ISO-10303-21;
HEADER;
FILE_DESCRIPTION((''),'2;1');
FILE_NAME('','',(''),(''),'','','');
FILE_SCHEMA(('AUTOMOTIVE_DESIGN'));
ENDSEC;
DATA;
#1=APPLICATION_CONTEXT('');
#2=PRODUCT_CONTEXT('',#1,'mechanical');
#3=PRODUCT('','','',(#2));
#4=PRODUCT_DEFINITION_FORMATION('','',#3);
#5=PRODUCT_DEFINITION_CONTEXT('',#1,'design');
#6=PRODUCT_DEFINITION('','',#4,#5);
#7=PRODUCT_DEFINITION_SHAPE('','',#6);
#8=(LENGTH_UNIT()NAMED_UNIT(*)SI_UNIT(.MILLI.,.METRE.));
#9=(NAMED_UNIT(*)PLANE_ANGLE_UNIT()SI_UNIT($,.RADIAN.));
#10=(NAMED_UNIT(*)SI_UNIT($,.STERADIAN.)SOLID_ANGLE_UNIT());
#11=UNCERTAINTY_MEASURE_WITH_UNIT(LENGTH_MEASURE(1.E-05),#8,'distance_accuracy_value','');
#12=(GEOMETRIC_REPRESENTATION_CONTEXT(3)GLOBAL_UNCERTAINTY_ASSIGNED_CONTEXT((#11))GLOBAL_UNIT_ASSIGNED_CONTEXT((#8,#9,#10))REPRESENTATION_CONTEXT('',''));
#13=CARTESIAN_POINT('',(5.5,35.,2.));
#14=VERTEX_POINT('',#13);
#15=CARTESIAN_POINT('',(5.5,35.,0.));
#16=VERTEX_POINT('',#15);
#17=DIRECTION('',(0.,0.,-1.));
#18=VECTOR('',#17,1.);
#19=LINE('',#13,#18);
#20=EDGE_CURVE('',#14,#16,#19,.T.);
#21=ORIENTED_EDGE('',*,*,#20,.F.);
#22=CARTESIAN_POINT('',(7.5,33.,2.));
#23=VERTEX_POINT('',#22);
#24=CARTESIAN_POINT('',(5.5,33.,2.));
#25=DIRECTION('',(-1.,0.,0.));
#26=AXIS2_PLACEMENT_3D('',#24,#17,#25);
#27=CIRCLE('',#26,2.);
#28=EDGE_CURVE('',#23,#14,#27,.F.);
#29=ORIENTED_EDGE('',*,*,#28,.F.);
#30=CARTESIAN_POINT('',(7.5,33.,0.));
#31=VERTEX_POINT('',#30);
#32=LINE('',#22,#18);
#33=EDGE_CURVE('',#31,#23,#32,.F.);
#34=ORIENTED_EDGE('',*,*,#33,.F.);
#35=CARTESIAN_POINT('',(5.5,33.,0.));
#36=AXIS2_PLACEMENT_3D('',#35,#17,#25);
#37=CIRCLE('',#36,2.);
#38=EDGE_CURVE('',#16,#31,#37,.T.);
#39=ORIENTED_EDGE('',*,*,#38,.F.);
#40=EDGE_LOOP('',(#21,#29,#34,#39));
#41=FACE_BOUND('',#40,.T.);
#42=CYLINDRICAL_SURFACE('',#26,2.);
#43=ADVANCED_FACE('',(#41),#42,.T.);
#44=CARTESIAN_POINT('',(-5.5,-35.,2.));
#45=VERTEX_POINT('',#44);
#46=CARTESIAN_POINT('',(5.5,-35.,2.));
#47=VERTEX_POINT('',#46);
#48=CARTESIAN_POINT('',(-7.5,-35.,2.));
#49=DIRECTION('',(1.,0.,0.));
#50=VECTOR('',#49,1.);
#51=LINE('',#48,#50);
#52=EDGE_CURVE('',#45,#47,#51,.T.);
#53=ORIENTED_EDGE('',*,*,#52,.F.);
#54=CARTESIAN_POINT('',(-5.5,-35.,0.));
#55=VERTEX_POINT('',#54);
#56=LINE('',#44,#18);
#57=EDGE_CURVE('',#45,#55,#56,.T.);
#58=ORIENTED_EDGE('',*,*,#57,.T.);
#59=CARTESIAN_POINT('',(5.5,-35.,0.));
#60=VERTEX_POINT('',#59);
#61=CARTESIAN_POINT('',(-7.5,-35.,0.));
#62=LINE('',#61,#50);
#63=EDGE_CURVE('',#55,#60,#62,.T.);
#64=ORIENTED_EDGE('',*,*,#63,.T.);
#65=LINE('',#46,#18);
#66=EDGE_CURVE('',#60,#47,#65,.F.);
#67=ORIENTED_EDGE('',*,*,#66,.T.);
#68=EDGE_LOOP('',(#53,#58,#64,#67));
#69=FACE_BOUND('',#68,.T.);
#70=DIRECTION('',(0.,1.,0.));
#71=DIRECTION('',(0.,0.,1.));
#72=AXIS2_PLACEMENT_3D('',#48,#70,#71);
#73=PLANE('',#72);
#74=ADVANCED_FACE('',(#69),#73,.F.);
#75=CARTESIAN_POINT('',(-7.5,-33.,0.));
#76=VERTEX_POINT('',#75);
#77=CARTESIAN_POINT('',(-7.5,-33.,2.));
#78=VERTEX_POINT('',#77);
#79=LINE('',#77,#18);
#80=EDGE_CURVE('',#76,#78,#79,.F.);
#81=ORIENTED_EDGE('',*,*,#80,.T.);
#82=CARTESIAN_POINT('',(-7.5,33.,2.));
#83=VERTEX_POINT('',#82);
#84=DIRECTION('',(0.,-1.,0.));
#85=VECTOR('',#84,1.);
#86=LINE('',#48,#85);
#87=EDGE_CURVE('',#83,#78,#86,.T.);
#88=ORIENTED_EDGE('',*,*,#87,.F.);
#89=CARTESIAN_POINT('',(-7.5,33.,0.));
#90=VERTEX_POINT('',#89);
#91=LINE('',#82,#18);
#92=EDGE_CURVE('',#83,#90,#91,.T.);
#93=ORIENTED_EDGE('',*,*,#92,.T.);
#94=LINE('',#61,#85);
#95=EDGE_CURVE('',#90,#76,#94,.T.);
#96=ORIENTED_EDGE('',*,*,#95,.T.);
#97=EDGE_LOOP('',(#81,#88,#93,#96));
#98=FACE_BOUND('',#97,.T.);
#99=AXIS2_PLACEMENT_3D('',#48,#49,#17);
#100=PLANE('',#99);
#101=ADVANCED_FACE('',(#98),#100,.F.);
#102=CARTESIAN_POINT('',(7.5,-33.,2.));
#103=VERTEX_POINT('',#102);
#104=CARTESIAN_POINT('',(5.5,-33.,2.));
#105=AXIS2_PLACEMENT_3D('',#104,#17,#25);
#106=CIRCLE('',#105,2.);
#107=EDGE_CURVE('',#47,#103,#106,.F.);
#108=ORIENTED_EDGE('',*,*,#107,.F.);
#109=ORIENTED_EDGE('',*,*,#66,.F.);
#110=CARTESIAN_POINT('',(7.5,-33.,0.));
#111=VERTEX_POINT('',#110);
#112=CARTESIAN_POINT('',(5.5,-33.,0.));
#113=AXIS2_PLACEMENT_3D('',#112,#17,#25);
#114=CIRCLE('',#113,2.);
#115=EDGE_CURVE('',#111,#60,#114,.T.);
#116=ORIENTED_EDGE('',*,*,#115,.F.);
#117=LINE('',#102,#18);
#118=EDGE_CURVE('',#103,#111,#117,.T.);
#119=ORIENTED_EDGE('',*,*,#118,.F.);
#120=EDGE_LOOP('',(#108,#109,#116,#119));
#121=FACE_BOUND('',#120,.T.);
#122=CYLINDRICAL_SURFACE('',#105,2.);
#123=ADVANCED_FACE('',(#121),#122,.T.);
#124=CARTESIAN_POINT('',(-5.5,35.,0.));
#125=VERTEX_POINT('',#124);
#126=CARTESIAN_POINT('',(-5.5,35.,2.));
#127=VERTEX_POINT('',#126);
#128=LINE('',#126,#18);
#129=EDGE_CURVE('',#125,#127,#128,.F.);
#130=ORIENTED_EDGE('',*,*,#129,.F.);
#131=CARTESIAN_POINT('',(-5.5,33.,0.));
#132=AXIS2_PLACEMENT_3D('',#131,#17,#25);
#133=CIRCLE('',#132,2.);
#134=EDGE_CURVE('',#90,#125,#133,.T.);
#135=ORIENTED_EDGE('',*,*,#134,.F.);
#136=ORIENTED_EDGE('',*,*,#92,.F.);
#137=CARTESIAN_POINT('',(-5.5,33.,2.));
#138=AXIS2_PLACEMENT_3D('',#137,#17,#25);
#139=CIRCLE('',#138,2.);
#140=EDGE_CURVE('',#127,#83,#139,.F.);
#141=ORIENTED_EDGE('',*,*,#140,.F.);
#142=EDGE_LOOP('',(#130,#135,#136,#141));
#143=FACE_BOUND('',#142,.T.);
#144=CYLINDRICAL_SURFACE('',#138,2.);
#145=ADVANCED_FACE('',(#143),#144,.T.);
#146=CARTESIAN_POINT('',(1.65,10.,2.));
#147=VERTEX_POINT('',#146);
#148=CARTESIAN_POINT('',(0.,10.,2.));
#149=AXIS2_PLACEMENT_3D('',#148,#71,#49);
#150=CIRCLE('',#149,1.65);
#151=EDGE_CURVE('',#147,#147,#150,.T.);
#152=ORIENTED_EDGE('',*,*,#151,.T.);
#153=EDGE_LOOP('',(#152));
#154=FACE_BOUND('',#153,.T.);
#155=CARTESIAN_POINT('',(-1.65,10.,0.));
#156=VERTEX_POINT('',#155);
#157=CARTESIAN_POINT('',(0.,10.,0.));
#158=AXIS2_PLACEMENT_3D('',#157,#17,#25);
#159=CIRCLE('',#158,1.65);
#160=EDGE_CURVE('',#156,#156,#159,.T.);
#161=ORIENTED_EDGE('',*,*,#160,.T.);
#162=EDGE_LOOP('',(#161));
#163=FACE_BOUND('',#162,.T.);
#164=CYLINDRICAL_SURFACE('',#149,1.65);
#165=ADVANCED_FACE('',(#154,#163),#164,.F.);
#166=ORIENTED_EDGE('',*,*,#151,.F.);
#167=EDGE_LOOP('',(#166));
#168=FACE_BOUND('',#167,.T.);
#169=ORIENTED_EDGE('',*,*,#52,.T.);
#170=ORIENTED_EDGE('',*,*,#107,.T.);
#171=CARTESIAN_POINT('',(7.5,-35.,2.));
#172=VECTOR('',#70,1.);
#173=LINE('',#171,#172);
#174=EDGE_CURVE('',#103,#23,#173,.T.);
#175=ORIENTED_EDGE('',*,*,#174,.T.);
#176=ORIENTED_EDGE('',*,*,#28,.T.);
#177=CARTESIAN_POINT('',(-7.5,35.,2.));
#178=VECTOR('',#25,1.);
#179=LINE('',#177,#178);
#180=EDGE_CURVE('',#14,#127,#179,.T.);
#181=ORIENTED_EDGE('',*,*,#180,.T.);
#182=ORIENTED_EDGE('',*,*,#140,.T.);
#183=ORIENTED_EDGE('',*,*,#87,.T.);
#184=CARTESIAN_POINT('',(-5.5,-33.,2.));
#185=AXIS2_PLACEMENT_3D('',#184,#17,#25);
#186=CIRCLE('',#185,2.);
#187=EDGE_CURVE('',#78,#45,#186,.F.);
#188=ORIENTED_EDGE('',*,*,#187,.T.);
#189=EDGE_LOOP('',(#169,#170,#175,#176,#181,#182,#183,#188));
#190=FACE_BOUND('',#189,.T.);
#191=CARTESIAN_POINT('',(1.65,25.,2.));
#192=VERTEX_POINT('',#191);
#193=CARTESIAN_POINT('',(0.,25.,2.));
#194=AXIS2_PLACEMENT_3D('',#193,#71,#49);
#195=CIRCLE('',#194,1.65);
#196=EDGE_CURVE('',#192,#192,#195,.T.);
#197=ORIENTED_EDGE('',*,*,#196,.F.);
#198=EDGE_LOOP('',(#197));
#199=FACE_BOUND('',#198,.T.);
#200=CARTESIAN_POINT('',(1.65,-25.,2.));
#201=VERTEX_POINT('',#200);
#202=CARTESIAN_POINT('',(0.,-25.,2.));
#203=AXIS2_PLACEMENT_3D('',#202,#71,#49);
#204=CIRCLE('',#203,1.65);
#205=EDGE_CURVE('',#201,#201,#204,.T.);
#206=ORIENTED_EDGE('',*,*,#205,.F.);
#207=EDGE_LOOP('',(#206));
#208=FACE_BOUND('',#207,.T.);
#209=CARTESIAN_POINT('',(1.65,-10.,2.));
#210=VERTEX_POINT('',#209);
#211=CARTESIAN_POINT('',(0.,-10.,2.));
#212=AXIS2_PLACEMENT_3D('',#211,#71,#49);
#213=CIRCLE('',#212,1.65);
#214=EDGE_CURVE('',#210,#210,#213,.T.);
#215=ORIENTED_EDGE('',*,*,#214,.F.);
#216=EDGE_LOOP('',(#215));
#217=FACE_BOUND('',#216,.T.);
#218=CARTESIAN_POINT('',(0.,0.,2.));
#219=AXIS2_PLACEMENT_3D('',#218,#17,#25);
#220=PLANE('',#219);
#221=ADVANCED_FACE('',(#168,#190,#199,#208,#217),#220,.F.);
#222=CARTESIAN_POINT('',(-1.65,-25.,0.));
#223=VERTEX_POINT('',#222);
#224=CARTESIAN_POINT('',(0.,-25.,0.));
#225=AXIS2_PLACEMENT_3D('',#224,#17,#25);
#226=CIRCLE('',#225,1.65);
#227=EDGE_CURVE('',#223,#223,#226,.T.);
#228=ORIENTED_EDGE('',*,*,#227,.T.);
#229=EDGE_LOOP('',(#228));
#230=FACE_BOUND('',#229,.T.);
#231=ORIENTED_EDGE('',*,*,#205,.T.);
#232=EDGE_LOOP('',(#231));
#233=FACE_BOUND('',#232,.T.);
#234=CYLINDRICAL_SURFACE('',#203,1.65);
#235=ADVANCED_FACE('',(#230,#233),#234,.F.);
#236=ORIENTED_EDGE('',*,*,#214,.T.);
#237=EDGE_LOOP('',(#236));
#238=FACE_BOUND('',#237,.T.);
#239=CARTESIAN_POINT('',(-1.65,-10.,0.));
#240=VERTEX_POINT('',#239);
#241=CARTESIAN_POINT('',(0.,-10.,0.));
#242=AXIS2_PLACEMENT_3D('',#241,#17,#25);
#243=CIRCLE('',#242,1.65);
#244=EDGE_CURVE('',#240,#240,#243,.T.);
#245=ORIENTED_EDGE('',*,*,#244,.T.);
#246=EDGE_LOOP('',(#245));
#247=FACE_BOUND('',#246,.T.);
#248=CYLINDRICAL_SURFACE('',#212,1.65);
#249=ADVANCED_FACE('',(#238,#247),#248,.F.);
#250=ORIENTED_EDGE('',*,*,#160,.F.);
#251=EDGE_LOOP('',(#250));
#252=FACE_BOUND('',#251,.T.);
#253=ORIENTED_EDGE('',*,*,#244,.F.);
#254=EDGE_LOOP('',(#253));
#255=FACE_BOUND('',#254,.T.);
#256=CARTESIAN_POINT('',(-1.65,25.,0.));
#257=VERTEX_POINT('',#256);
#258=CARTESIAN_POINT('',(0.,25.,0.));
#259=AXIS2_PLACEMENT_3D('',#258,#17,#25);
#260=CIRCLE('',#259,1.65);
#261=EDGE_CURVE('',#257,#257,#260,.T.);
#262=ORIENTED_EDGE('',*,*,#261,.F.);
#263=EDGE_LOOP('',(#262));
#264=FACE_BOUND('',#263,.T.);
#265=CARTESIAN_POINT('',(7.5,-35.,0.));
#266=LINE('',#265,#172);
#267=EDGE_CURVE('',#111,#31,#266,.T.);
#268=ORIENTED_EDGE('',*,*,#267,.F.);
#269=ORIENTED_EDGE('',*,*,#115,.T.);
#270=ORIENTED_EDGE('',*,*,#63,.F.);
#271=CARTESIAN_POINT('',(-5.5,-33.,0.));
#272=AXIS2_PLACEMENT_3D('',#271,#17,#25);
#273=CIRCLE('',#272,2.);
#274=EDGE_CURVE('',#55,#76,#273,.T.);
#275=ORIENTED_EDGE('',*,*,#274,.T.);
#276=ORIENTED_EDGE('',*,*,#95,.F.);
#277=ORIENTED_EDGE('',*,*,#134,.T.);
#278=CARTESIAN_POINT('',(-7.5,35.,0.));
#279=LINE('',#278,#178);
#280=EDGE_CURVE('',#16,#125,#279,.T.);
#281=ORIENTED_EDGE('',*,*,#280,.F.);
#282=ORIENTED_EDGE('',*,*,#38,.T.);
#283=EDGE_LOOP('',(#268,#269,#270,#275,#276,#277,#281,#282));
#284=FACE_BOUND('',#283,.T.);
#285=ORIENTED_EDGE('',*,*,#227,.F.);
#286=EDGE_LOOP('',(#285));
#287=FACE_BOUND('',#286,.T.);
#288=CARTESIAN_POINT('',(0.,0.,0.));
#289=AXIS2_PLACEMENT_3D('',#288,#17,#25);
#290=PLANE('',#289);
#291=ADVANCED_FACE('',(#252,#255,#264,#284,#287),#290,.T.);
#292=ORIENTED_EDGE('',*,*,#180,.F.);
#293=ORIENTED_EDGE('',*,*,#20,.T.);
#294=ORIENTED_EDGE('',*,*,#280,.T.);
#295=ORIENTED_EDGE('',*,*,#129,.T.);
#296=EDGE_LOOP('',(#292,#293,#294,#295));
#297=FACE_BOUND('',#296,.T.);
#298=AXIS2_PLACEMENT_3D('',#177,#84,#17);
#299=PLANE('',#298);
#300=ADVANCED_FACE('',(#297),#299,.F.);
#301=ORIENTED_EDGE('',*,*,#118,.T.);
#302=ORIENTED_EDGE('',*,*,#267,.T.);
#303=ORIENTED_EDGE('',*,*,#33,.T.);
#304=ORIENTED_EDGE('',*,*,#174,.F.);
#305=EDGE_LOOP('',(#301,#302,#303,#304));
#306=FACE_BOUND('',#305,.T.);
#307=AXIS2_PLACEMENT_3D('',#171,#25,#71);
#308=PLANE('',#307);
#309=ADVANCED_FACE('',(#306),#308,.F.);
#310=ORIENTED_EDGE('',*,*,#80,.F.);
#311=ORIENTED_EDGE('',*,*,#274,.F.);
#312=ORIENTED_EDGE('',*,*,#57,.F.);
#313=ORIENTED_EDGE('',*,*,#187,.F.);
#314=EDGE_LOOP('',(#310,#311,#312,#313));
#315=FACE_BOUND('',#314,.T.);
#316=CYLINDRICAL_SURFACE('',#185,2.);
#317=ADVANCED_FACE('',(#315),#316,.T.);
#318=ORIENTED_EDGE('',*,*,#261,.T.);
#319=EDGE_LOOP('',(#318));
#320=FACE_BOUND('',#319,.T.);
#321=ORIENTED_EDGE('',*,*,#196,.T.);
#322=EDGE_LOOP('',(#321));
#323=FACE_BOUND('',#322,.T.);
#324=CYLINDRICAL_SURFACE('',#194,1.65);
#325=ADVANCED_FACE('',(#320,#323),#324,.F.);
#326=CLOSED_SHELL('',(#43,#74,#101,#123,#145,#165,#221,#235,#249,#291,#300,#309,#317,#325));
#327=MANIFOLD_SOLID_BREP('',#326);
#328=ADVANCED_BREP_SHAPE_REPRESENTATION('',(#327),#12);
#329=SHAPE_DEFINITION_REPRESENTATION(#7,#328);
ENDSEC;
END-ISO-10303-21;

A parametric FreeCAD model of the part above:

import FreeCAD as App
import Part
import Sketcher
from FreeCAD import Vector


def edges_at(feature, points):
    """Names of the edges that pass closest to the given points."""
    edges = feature.Shape.Edges
    near = lambda p: min(range(len(edges)), key=lambda i: edges[i].distToShape(Part.Vertex(*p))[0])
    return sorted({f"Edge{near(p) + 1}" for p in points})


def add_polygon(sketch, points):
    """Adds a closed chain of lines whose ends are joined by coincident constraints."""
    first, n = sketch.GeometryCount, len(points)
    for a, b in zip(points, points[1:] + points[:1]):
        sketch.addGeometry(Part.LineSegment(App.Vector(*a, 0), App.Vector(*b, 0)), False)
    for i in range(n):
        sketch.addConstraint(Sketcher.Constraint("Coincident", first + i, 2, first + (i + 1) % n, 1))

doc = App.newDocument("Part")
body = doc.addObject("PartDesign::Body", "Body")

# Sketch on XY plane
sketch1 = body.newObject("Sketcher::SketchObject", "Sketch")
sketch1.AttachmentSupport = (doc.getObject("XY_Plane"), [""])
sketch1.MapMode = "FlatFace"
add_polygon(sketch1, [(-7.5, 35), (-7.5, -35), (7.5, -35), (7.5, 35)])  # lines 0-3
sketch1.addConstraint([
    Sketcher.Constraint("Vertical", 0),
    Sketcher.Constraint("Horizontal", 1),
    Sketcher.Constraint("Vertical", 2),
    Sketcher.Constraint("Horizontal", 3),
    Sketcher.Constraint("Symmetric", 0, 2, 2, 2, -1, 1),
    Sketcher.Constraint("DistanceX", 1, 1, 1, 2, 15.0),
    Sketcher.Constraint("DistanceY", 0, 2, 0, 1, 70.0),
])
pad1 = body.newObject("PartDesign::Pad", "Pad")
pad1.Profile = sketch1
pad1.Length = 2

# Sketch on XY plane
sketch2 = body.newObject("Sketcher::SketchObject", "Sketch001")
sketch2.AttachmentSupport = (doc.getObject("XY_Plane"), [""])
sketch2.MapMode = "FlatFace"
sketch2.AttachmentOffset = App.Placement(Vector(0, 0, 2), App.Rotation())
sketch2.addGeometry([
    Part.Circle(Vector(0, 25, 0), Vector(0, 0, 1), 1.65),
    Part.Circle(Vector(0, -25, 0), Vector(0, 0, 1), 1.65),
    Part.Circle(Vector(0, -10, 0), Vector(0, 0, 1), 1.65),
    Part.Circle(Vector(0, 10, 0), Vector(0, 0, 1), 1.65),
], False)
sketch2.addConstraint([
    Sketcher.Constraint("Equal", 0, 1),
    Sketcher.Constraint("Equal", 1, 2),
    Sketcher.Constraint("Equal", 2, 3),
    Sketcher.Constraint("Symmetric", 0, 3, 1, 3, -1, 1),
    Sketcher.Constraint("Symmetric", 2, 3, 3, 3, -1, 1),
    Sketcher.Constraint("PointOnObject", 0, 3, -2),
    Sketcher.Constraint("PointOnObject", 2, 3, -2),
    Sketcher.Constraint("Diameter", 0, 3.3),
    Sketcher.Constraint("DistanceY", -1, 1, 0, 3, 25.0),
    Sketcher.Constraint("DistanceY", 2, 3, -1, 1, 10.0),
])
doc.recompute()
hole = body.newObject("PartDesign::Hole", "Hole")
hole.Profile = sketch2
hole.ThreadType = "None"
hole.Diameter = 3.3
hole.DepthType = "Dimension"
hole.Depth = 11.5
hole.DrillPoint = "Angled"
hole.DrillPointAngle = 118
doc.recompute()

fillet = body.newObject("PartDesign::Fillet", "Fillet")
fillet.Base = (hole, edges_at(hole, [
    (7.5, -35, 1),
    (-7.5, -35, 1),
    (-7.5, 35, 1),
    (7.5, 35, 1),
]))
fillet.Radius = 2

doc.recompute()
